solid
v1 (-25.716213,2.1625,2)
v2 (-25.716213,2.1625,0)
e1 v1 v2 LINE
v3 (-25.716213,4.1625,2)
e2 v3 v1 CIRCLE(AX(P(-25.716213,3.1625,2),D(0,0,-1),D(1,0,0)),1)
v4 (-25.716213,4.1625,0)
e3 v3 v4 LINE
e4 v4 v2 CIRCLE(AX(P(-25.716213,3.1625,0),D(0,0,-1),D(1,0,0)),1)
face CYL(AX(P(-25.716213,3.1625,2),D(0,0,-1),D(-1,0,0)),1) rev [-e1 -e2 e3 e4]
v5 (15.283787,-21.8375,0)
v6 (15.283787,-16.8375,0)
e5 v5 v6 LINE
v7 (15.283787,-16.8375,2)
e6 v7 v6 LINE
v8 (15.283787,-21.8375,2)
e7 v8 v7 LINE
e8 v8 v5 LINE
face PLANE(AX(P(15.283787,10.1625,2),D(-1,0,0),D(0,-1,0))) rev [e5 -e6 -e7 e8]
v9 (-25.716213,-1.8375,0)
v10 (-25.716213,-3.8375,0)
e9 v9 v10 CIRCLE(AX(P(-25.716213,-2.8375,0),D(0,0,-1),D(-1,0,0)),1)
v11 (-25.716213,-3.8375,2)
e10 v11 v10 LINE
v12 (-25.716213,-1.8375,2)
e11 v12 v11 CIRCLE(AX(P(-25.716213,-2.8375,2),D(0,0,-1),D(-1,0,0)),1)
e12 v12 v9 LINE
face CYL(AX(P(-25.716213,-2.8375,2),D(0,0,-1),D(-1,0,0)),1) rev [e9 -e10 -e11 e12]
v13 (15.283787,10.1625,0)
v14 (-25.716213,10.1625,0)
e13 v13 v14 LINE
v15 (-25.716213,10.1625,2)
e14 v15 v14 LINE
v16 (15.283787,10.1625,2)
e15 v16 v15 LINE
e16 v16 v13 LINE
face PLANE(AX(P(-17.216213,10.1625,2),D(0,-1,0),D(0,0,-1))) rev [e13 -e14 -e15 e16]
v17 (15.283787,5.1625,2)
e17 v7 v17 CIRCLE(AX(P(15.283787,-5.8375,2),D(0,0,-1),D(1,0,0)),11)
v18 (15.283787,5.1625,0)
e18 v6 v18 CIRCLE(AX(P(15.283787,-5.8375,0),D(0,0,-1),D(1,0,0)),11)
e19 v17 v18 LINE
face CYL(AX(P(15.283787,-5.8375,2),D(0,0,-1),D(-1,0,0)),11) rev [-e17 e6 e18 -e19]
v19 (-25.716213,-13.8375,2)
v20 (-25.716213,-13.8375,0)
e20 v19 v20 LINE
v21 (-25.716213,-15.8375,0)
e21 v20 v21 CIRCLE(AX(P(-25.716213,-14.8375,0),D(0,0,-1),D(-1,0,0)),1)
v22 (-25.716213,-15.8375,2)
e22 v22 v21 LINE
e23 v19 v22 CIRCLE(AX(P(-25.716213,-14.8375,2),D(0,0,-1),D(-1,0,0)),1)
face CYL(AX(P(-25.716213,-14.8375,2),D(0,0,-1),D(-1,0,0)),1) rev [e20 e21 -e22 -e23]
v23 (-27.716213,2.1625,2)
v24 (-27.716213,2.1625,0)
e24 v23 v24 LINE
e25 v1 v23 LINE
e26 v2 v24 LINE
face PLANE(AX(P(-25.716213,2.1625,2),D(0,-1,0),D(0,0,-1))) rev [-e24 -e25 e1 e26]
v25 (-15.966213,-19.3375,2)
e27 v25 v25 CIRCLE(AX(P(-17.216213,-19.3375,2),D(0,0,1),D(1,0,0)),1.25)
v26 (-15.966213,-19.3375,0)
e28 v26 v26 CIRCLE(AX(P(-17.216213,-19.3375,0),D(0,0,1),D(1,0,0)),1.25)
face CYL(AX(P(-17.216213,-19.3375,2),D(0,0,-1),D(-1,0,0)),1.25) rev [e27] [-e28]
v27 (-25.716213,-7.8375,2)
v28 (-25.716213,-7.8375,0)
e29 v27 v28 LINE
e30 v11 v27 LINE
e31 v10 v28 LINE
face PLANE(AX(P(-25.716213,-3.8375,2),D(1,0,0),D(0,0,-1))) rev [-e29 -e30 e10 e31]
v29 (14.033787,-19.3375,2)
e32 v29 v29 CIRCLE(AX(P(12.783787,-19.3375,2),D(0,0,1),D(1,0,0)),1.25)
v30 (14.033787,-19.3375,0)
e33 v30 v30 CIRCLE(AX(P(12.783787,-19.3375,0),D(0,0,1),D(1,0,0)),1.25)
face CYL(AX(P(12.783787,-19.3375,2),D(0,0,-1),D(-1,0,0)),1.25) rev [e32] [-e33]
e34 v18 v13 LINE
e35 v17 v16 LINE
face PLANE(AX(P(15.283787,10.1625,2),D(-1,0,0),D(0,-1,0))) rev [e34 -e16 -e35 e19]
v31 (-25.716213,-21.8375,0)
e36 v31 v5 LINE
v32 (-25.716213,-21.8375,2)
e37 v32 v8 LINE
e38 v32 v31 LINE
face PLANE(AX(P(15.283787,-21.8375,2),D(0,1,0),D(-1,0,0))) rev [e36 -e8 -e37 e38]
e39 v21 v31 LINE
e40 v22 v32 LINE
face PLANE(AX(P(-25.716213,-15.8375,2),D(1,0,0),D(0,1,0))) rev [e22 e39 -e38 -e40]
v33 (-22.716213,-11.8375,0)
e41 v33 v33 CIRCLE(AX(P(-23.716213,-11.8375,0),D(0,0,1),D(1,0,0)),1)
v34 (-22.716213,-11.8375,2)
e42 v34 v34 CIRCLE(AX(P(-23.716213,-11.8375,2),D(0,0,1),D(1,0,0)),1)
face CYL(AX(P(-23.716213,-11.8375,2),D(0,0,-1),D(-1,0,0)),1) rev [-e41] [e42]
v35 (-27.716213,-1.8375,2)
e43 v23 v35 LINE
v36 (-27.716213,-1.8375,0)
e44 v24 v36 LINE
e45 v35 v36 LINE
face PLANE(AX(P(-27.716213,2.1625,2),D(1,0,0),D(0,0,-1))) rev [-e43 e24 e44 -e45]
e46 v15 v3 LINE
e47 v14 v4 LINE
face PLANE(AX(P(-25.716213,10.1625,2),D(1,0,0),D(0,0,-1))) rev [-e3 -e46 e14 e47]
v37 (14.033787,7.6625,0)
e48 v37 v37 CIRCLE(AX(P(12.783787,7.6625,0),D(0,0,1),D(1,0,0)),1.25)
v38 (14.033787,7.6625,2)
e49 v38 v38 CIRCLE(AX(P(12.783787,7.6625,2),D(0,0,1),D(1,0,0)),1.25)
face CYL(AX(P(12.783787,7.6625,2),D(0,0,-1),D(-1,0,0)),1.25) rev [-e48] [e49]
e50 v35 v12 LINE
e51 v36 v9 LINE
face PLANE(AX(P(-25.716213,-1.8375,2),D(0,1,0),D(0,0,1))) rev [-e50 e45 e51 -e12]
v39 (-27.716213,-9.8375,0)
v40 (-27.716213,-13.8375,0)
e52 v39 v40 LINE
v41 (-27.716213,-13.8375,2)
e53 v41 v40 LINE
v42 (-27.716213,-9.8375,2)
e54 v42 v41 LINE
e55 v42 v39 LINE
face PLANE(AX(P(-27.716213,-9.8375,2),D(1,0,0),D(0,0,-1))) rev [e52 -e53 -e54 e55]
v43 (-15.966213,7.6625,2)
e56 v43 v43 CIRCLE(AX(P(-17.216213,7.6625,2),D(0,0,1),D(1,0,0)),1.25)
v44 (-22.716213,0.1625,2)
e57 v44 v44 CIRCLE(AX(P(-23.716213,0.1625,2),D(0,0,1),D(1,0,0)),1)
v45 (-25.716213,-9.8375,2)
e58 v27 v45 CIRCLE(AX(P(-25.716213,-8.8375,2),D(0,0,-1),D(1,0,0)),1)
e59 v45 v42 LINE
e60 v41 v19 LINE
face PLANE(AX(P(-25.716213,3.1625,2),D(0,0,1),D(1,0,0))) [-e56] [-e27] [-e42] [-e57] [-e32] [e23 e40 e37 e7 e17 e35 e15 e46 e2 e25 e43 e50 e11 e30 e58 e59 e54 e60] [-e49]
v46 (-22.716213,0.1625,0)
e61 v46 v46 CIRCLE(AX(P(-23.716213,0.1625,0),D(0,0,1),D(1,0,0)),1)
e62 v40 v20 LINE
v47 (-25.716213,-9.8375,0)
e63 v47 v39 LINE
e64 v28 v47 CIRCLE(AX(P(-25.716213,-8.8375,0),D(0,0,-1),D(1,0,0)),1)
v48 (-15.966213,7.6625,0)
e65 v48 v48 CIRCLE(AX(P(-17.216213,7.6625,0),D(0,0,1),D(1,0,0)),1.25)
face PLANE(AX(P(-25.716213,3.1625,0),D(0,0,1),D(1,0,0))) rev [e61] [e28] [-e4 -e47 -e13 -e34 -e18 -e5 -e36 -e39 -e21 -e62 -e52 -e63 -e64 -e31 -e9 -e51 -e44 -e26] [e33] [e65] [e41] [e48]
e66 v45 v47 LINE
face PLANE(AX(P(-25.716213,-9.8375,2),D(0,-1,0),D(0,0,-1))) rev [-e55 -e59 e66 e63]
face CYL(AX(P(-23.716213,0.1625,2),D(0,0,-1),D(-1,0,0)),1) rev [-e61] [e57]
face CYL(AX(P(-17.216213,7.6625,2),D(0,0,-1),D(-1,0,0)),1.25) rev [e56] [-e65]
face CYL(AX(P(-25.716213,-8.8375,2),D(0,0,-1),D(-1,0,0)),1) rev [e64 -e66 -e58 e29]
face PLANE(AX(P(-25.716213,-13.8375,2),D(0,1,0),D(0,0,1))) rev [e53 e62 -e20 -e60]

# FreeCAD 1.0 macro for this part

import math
import FreeCAD as App
import Part
import Sketcher
Q = App.Units.Quantity

doc = App.newDocument("Part")
body = doc.addObject("PartDesign::Body", "Body")

# Sketch on XY plane
sketch1 = body.newObject("Sketcher::SketchObject", "Sketch")
sketch1.AttachmentSupport = (doc.getObject("XY_Plane"), [""])
sketch1.MapMode = "FlatFace"
sketch1.addGeometry([
    Part.LineSegment(App.Vector(15.3, -21.8, 0), App.Vector(15.3, 10.2, 0)),  # 0
    Part.LineSegment(App.Vector(15.3, 10.2, 0), App.Vector(-25.7, 10.2, 0)),  # 1
    Part.LineSegment(App.Vector(-25.7, 10.2, 0), App.Vector(-25.7, 4.2, 0)),  # 2
    Part.ArcOfCircle(Part.Circle(App.Vector(-25.7, 3.2, 0), App.Vector(0, 0, 1), 1), math.radians(-90), math.radians(90)),  # 3
    Part.LineSegment(App.Vector(-25.7, 2.2, 0), App.Vector(-27.7, 2.2, 0)),  # 4
    Part.LineSegment(App.Vector(-27.7, 2.2, 0), App.Vector(-27.7, -1.8, 0)),  # 5
    Part.LineSegment(App.Vector(-27.7, -1.8, 0), App.Vector(-25.7, -1.8, 0)),  # 6
    Part.ArcOfCircle(Part.Circle(App.Vector(-25.7, -2.8, 0), App.Vector(0, 0, 1), 1), math.radians(-90), math.radians(90)),  # 7
    Part.LineSegment(App.Vector(-25.7, -3.8, 0), App.Vector(-25.7, -7.8, 0)),  # 8
    Part.ArcOfCircle(Part.Circle(App.Vector(-25.7, -8.8, 0), App.Vector(0, 0, 1), 1), math.radians(-90), math.radians(90)),  # 9
    Part.LineSegment(App.Vector(-25.7, -9.8, 0), App.Vector(-27.7, -9.8, 0)),  # 10
    Part.LineSegment(App.Vector(-27.7, -9.8, 0), App.Vector(-27.7, -13.8, 0)),  # 11
    Part.LineSegment(App.Vector(-27.7, -13.8, 0), App.Vector(-25.7, -13.8, 0)),  # 12
    Part.ArcOfCircle(Part.Circle(App.Vector(-25.7, -14.8, 0), App.Vector(0, 0, 1), 1), math.radians(-90), math.radians(90)),  # 13
    Part.LineSegment(App.Vector(-25.7, -15.8, 0), App.Vector(-25.7, -21.8, 0)),  # 14
    Part.LineSegment(App.Vector(-25.7, -21.8, 0), App.Vector(15.3, -21.8, 0)),  # 15
    Part.Circle(App.Vector(12.8, -19.3, 0), App.Vector(0, 0, 1), 1.2),  # 16
    Part.Circle(App.Vector(-17.2, -19.3, 0), App.Vector(0, 0, 1), 1.2),  # 17
    Part.Circle(App.Vector(-23.7, -11.8, 0), App.Vector(0, 0, 1), 1),  # 18
    Part.Circle(App.Vector(12.8, 7.7, 0), App.Vector(0, 0, 1), 1.2),  # 19
    Part.Circle(App.Vector(-23.7, 0.2, 0), App.Vector(0, 0, 1), 1),  # 20
    Part.Circle(App.Vector(-17.2, 7.7, 0), App.Vector(0, 0, 1), 1.2),  # 21
], False)
sketch1.addConstraint([
    Sketcher.Constraint("Coincident", 0, 2, 1, 1),
    Sketcher.Constraint("Coincident", 1, 2, 2, 1),
    Sketcher.Constraint("Coincident", 2, 2, 3, 2),
    Sketcher.Constraint("Tangent", 3, 1, 4, 1),
    Sketcher.Constraint("Coincident", 4, 2, 5, 1),
    Sketcher.Constraint("Coincident", 5, 2, 6, 1),
    Sketcher.Constraint("Tangent", 6, 2, 7, 2),
    Sketcher.Constraint("Coincident", 7, 1, 8, 1),
    Sketcher.Constraint("Coincident", 8, 2, 9, 2),
    Sketcher.Constraint("Tangent", 9, 1, 10, 1),
    Sketcher.Constraint("Coincident", 10, 2, 11, 1),
    Sketcher.Constraint("Coincident", 11, 2, 12, 1),
    Sketcher.Constraint("Tangent", 12, 2, 13, 2),
    Sketcher.Constraint("Coincident", 13, 1, 14, 1),
    Sketcher.Constraint("Coincident", 14, 2, 15, 1),
    Sketcher.Constraint("Coincident", 15, 2, 0, 1),
    Sketcher.Constraint("Vertical", 0),
    Sketcher.Constraint("Horizontal", 1),
    Sketcher.Constraint("Vertical", 2),
    Sketcher.Constraint("Horizontal", 4),
    Sketcher.Constraint("Vertical", 5),
    Sketcher.Constraint("Horizontal", 6),
    Sketcher.Constraint("Vertical", 8),
    Sketcher.Constraint("Horizontal", 10),
    Sketcher.Constraint("Vertical", 11),
    Sketcher.Constraint("Horizontal", 12),
    Sketcher.Constraint("Vertical", 14),
    Sketcher.Constraint("Horizontal", 15),
    Sketcher.Constraint("Equal", 3, 7),
    Sketcher.Constraint("Equal", 7, 9),
    Sketcher.Constraint("Equal", 9, 13),
    Sketcher.Constraint("Equal", 16, 17),
    Sketcher.Constraint("Equal", 13, 18),
    Sketcher.Constraint("Equal", 17, 19),
    Sketcher.Constraint("Equal", 18, 20),
    Sketcher.Constraint("Equal", 19, 21),
    Sketcher.Constraint("Horizontal", 16, 3, 17, 3),
    Sketcher.Constraint("Horizontal", 19, 3, 21, 3),
    Sketcher.Constraint("Vertical", 3, 3, 7, 3),
    Sketcher.Constraint("Vertical", 7, 3, 9, 3),
    Sketcher.Constraint("Vertical", 9, 3, 13, 3),
    Sketcher.Constraint("Vertical", 16, 3, 19, 3),
    Sketcher.Constraint("Vertical", 18, 3, 20, 3),
    Sketcher.Constraint("Vertical", 17, 3, 21, 3),
    Sketcher.Constraint("Vertical", 13, 3, 1, 2),
    Sketcher.Constraint("Vertical", 6, 2, 7, 1),
    Sketcher.Constraint("Vertical", 5, 2, 10, 2),
    Sketcher.Constraint("Vertical", 12, 2, 13, 1),
    Sketcher.Constraint("Equal", 5, 8),
    Sketcher.Constraint("Equal", 8, 11),
    Sketcher.Constraint("Equal", 2, 14),
    Sketcher.Constraint("Diameter", 18, Q("2 mm")),
    Sketcher.Constraint("Diameter", 16, Q("2.5 mm")),
    Sketcher.Constraint("DistanceX", 1, 2, 1, 1, Q("41 mm")),
    Sketcher.Constraint("DistanceX", 4, 2, 4, 1, Q("2 mm")),
    Sketcher.Constraint("DistanceY", 0, 1, 0, 2, Q("32 mm")),
    Sketcher.Constraint("DistanceY", 2, 2, 2, 1, Q("6 mm")),
    Sketcher.Constraint("DistanceX", 17, 3, 16, 3, Q("30 mm")),
    Sketcher.Constraint("DistanceX", 9, 3, 18, 3, Q("2 mm")),
    Sketcher.Constraint("DistanceY", 18, 3, 9, 3, Q("3 mm")),
    Sketcher.Constraint("DistanceY", 16, 3, 19, 3, Q("27 mm")),
    Sketcher.Constraint("DistanceY", 20, 3, 3, 3, Q("3 mm")),
    Sketcher.Constraint("DistanceX", 13, 3, 16, 3, Q("38.5 mm")),
    Sketcher.Constraint("DistanceY", 16, 3, 13, 3, Q("4.5 mm")),
    Sketcher.Constraint("DistanceY", -1, 1, 3, 3, Q("3.1625 mm")),
    Sketcher.Constraint("DistanceX", 3, 3, -1, 1, Q("25.716213 mm")),
])
pad1 = body.newObject("PartDesign::Pad", "Pad")
pad1.Profile = sketch1
pad1.Length = 2

# Sketch on XY plane
sketch2 = body.newObject("Sketcher::SketchObject", "Sketch001")
sketch2.AttachmentSupport = (doc.getObject("XY_Plane"), [""])
sketch2.MapMode = "FlatFace"
sketch2.addGeometry([
    Part.LineSegment(App.Vector(15, 5, 0), App.Vector(15, -17, 0)),
    Part.ArcOfCircle(Part.Circle(App.Vector(15, -6, 0), App.Vector(0, 0, 1), 11), math.radians(90), math.radians(270)),
], False)
sketch2.addConstraint([
    Sketcher.Constraint("Coincident", 0, 1, 1, 1),
    Sketcher.Constraint("Coincident", 1, 2, 0, 2),
    Sketcher.Constraint("Vertical", 0),
    Sketcher.Constraint("Vertical", 1, 3, 0, 1),
    Sketcher.Constraint("Radius", 1, Q("11 mm")),
    Sketcher.Constraint("DistanceY", 1, 3, -1, 1, Q("5.8375 mm")),
    Sketcher.Constraint("DistanceX", -1, 1, 1, 3, Q("15.283787 mm")),
])
pocket1 = body.newObject("PartDesign::Pocket", "Pocket")
pocket1.Profile = sketch2
pocket1.Length = 2
pocket1.Reversed = True

doc.recompute()
